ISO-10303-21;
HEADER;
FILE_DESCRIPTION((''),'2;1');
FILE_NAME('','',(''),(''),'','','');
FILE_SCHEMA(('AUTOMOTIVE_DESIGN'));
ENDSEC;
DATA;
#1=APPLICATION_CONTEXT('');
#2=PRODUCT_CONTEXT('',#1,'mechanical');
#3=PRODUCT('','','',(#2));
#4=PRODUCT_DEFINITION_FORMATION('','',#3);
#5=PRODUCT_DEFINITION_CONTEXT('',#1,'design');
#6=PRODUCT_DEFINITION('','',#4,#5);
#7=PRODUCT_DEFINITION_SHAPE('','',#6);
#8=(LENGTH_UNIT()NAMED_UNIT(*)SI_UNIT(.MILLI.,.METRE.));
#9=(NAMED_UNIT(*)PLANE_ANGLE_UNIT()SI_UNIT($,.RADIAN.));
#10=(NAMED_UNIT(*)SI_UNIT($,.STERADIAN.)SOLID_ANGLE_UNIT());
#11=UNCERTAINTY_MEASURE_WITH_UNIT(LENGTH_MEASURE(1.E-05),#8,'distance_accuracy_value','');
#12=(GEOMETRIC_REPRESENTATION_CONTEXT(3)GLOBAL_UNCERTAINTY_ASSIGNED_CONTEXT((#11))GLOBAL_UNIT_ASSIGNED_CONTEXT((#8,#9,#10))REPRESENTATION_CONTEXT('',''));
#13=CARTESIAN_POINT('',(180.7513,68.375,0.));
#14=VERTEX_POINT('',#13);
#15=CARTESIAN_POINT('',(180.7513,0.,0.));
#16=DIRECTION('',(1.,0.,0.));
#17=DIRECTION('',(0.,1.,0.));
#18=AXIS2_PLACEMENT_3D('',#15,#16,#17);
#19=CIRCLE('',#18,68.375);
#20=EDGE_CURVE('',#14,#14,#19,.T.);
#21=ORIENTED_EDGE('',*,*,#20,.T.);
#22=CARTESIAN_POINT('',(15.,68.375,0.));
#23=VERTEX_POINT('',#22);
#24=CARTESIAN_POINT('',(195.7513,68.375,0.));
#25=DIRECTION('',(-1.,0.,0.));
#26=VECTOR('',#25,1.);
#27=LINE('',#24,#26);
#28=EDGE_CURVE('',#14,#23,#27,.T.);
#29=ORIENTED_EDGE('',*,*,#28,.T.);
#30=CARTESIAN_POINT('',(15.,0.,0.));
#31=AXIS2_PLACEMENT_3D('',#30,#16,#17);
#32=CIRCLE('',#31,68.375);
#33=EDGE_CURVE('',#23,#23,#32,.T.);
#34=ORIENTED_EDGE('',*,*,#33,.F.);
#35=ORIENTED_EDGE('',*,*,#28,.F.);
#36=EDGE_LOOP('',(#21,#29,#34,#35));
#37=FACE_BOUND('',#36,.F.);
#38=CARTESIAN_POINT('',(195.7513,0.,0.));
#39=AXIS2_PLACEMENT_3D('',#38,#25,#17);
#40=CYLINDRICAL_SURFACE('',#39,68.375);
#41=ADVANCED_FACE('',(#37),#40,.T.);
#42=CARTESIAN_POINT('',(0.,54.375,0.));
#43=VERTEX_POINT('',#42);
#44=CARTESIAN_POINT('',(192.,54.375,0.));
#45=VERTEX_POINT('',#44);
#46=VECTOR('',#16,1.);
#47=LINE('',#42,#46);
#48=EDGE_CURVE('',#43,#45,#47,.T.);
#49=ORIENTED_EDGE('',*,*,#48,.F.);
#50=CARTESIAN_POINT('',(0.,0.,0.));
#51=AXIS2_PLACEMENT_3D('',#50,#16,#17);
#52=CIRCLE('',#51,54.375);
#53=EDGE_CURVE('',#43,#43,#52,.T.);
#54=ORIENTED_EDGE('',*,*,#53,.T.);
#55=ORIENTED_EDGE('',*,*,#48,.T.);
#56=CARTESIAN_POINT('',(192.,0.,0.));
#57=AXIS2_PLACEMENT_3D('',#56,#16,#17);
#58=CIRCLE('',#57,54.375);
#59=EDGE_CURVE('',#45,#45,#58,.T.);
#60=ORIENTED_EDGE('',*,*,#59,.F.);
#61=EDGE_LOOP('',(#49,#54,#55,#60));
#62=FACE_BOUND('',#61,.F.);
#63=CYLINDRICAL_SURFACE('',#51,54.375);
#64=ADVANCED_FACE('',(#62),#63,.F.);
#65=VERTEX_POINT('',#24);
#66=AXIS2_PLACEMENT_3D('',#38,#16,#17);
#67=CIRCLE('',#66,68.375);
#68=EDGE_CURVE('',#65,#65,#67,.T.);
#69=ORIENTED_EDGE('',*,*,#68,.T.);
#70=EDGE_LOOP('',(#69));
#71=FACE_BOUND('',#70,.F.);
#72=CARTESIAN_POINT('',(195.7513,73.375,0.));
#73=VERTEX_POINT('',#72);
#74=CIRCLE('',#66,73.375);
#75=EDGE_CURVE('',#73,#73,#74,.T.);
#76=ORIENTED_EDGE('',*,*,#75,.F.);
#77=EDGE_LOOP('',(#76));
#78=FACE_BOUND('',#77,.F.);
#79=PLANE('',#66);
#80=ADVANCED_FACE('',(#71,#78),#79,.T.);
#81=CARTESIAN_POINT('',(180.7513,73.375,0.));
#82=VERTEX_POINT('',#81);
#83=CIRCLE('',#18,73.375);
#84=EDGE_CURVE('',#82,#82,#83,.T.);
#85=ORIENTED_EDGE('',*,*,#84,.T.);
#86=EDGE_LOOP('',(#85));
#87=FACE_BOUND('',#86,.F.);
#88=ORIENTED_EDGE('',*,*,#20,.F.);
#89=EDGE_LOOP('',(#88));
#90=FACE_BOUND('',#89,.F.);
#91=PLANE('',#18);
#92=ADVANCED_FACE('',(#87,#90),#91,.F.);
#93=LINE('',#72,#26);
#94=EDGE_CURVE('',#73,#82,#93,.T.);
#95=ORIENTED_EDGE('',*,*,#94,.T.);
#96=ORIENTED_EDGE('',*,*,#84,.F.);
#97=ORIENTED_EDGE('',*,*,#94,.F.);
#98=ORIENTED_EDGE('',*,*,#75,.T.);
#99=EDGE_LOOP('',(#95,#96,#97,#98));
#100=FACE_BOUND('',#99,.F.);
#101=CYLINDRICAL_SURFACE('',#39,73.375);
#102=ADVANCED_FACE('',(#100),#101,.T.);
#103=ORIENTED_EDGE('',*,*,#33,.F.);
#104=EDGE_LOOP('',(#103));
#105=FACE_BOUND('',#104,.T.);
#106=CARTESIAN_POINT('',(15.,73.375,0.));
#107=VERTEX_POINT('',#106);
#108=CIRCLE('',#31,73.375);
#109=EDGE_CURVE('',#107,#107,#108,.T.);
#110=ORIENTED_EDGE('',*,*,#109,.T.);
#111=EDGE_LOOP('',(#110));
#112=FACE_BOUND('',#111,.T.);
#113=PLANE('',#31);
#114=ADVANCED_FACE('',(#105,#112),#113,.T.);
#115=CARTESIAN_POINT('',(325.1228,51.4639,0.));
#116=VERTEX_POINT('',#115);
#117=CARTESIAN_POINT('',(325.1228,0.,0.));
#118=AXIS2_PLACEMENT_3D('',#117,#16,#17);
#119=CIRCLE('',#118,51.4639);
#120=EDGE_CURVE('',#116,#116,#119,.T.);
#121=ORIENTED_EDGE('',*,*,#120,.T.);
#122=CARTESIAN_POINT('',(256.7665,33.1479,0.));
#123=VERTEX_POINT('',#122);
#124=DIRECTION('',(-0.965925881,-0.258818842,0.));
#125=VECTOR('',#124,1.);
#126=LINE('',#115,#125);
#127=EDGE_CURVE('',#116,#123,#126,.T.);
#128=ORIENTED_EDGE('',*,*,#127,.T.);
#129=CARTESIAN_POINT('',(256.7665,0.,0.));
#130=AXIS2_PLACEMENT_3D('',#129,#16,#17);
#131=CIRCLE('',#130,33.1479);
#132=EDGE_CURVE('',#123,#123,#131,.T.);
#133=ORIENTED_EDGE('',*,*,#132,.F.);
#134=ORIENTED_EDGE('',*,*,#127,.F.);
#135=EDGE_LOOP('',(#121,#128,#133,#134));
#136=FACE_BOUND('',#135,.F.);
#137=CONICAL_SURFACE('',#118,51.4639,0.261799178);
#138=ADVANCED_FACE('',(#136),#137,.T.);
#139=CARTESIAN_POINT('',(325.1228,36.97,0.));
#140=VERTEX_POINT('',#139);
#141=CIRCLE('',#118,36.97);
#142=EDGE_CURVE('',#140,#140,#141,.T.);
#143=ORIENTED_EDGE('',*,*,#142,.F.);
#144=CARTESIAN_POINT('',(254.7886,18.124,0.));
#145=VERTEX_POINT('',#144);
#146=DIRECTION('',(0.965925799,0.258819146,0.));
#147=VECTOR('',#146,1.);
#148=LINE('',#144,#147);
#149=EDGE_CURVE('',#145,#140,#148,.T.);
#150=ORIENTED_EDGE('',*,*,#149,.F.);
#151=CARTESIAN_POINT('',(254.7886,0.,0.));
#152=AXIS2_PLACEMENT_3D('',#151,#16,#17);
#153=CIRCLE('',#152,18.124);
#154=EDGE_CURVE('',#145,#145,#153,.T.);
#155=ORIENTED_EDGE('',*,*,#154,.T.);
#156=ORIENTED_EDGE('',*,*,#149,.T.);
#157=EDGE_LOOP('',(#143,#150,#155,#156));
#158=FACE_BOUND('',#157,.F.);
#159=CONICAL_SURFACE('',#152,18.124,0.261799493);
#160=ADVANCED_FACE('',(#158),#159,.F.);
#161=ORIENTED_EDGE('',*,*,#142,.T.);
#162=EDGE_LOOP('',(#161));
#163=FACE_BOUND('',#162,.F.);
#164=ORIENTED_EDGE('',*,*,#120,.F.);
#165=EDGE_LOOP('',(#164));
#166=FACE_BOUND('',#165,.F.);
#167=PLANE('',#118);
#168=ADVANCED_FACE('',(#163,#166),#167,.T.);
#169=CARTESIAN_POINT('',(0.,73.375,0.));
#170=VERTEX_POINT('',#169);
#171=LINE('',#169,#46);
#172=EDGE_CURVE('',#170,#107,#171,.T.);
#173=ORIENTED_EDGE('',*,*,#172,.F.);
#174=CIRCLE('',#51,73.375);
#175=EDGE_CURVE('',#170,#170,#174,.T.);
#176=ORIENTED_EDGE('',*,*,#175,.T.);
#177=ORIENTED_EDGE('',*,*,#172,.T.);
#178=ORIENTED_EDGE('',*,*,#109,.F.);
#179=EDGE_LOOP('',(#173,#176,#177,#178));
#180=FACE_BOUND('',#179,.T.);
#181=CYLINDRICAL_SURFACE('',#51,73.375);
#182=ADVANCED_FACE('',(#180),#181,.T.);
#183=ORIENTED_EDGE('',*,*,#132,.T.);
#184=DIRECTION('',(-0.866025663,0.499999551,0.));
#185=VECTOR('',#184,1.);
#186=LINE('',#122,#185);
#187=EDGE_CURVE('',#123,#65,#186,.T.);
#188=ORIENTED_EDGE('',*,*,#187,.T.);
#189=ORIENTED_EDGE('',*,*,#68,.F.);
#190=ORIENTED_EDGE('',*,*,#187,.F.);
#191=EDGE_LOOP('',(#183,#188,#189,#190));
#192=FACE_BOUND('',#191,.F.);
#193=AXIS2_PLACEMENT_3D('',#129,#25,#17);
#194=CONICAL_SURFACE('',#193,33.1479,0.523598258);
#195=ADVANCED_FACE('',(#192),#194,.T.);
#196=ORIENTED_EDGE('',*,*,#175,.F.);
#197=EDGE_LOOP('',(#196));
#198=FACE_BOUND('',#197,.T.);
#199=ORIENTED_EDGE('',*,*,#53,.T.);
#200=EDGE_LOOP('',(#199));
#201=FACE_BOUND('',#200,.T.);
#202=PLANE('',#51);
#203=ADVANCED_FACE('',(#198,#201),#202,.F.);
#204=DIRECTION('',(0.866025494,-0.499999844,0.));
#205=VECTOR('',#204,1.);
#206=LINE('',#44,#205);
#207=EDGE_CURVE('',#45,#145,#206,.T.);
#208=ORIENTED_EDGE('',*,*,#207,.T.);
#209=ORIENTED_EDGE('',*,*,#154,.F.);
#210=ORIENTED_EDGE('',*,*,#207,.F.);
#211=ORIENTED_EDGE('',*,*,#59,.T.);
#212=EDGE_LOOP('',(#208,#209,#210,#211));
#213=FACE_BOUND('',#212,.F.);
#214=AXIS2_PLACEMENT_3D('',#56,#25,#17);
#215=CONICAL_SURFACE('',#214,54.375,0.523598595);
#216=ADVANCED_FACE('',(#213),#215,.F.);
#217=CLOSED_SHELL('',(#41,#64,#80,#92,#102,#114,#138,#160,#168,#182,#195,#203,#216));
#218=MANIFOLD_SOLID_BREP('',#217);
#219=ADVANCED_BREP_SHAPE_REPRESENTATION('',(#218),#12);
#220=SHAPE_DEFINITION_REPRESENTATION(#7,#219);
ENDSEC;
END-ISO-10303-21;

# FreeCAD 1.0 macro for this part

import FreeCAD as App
import Part
import Sketcher
Q = App.Units.Quantity

doc = App.newDocument("Part")
body = doc.addObject("PartDesign::Body", "Body")

sketch1 = body.newObject("Sketcher::SketchObject", "Sketch")
sketch1.AttachmentSupport = (doc.getObject("XY_Plane"), [""])
sketch1.MapMode = "FlatFace"
sketch1.addGeometry([
    Part.LineSegment(App.Vector(0, 54, 0), App.Vector(192, 54, 0)),
    Part.LineSegment(App.Vector(192, 54, 0), App.Vector(255, 18, 0)),
    Part.LineSegment(App.Vector(255, 18, 0), App.Vector(325, 37, 0)),
    Part.LineSegment(App.Vector(325, 37, 0), App.Vector(325, 51, 0)),
    Part.LineSegment(App.Vector(325, 51, 0), App.Vector(257, 33, 0)),
    Part.LineSegment(App.Vector(257, 33, 0), App.Vector(196, 68, 0)),
    Part.LineSegment(App.Vector(196, 68, 0), App.Vector(196, 73, 0)),
    Part.LineSegment(App.Vector(196, 73, 0), App.Vector(181, 73, 0)),
    Part.LineSegment(App.Vector(181, 73, 0), App.Vector(181, 68, 0)),
    Part.LineSegment(App.Vector(181, 68, 0), App.Vector(15, 68, 0)),
    Part.LineSegment(App.Vector(15, 68, 0), App.Vector(15, 73, 0)),
    Part.LineSegment(App.Vector(15, 73, 0), App.Vector(0, 73, 0)),
    Part.LineSegment(App.Vector(0, 73, 0), App.Vector(0, 54, 0)),
], False)
sketch1.addConstraint([
    Sketcher.Constraint("Coincident", 0, 2, 1, 1),
    Sketcher.Constraint("Coincident", 1, 2, 2, 1),
    Sketcher.Constraint("Coincident", 2, 2, 3, 1),
    Sketcher.Constraint("Coincident", 3, 2, 4, 1),
    Sketcher.Constraint("Coincident", 4, 2, 5, 1),
    Sketcher.Constraint("Coincident", 5, 2, 6, 1),
    Sketcher.Constraint("Coincident", 6, 2, 7, 1),
    Sketcher.Constraint("Coincident", 7, 2, 8, 1),
    Sketcher.Constraint("Coincident", 8, 2, 9, 1),
    Sketcher.Constraint("Coincident", 9, 2, 10, 1),
    Sketcher.Constraint("Coincident", 10, 2, 11, 1),
    Sketcher.Constraint("Coincident", 11, 2, 12, 1),
    Sketcher.Constraint("Coincident", 12, 2, 0, 1),
    Sketcher.Constraint("Horizontal", 0),
    Sketcher.Constraint("Vertical", 3),
    Sketcher.Constraint("Vertical", 6),
    Sketcher.Constraint("Horizontal", 7),
    Sketcher.Constraint("Vertical", 8),
    Sketcher.Constraint("Horizontal", 9),
    Sketcher.Constraint("Vertical", 10),
    Sketcher.Constraint("Horizontal", 11),
    Sketcher.Constraint("Vertical", 12),
    Sketcher.Constraint("PointOnObject", 11, 2, -2),
    Sketcher.Constraint("Parallel", 2, 4),
    Sketcher.Constraint("Parallel", 1, 5),
    Sketcher.Constraint("Horizontal", 5, 2, 8, 2),
    Sketcher.Constraint("Horizontal", 7, 2, 10, 2),
    Sketcher.Constraint("Equal", 7, 11),
    Sketcher.Constraint("DistanceX", 0, 1, 0, 2, Q("192 mm")),
    Sketcher.Constraint("DistanceX", 7, 2, 7, 1, Q("15 mm")),
    Sketcher.Constraint("DistanceY", 6, 1, 6, 2, Q("5 mm")),
    Sketcher.Constraint("Angle", 1, Q("-30 deg")),
    Sketcher.Constraint("Angle", 2, Q("15 deg")),
    Sketcher.Constraint("DistanceY", 0, 2, 5, 2, Q("14 mm")),
    Sketcher.Constraint("DistanceY", -1, 1, 2, 2, Q("36.97 mm")),
    Sketcher.Constraint("DistanceY", -1, 1, 0, 2, Q("54.375 mm")),
    Sketcher.Constraint("DistanceY", -1, 1, 1, 2, Q("18.124 mm")),
    Sketcher.Constraint("DistanceY", 3, 1, 3, 2, Q("14.494 mm")),
    Sketcher.Constraint("DistanceX", 9, 2, 9, 1, Q("165.7513 mm")),
])
revolution = body.newObject("PartDesign::Revolution", "Revolution")
revolution.Profile = sketch1
revolution.ReferenceAxis = (sketch1, ["H_Axis"])
revolution.Angle = 360

doc.recompute()
